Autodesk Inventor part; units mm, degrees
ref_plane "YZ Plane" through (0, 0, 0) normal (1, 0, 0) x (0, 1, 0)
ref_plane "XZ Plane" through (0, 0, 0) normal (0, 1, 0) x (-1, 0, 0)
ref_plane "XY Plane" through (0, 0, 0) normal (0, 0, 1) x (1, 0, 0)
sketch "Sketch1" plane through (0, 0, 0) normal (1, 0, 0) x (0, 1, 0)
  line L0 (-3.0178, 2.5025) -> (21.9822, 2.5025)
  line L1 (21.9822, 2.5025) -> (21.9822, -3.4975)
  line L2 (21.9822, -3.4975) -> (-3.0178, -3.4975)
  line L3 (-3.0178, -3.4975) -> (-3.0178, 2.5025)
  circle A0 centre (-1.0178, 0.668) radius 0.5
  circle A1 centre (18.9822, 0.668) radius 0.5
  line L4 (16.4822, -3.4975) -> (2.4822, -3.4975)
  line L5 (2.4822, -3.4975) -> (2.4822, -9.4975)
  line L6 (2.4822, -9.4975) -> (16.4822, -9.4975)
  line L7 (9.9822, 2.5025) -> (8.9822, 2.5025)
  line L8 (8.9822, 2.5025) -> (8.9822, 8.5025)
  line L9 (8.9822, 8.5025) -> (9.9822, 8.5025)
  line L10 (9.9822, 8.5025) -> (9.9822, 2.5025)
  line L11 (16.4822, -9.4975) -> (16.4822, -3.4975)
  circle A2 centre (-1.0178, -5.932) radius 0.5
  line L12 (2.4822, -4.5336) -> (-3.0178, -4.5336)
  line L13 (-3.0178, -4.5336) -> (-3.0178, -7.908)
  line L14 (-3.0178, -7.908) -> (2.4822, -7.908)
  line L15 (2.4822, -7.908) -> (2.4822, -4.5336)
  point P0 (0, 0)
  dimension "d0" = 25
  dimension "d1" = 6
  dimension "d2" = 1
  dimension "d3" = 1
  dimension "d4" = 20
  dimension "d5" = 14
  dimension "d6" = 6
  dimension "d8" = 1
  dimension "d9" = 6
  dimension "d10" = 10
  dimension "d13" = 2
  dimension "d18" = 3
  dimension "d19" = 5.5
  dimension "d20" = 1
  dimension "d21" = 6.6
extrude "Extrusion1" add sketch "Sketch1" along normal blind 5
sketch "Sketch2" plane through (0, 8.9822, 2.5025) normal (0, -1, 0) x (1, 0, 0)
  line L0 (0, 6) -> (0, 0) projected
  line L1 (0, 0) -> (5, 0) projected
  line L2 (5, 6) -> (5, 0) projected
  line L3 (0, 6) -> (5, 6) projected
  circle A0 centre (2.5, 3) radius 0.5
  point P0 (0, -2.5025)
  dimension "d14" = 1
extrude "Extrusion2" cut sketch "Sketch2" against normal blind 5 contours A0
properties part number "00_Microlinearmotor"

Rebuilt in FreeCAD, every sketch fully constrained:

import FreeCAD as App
import Part
import Sketcher
from FreeCAD import Vector
Q = App.Units.Quantity

doc = App.newDocument("Part")
body = doc.addObject("PartDesign::Body", "Body")

# Sketch on YZ plane
sketch1 = body.newObject("Sketcher::SketchObject", "Sketch")
sketch1.AttachmentSupport = (doc.getObject("YZ_Plane"), [""])
sketch1.MapMode = "FlatFace"
sketch1.addGeometry([
    Part.LineSegment(Vector(9, 2.5, 0), Vector(-3, 2.5, 0)),  # 0
    Part.LineSegment(Vector(-3, 2.5, 0), Vector(-3, -3.5, 0)),  # 1
    Part.LineSegment(Vector(-3, -3.5, 0), Vector(2.5, -3.5, 0)),  # 2
    Part.LineSegment(Vector(2.5, -3.5, 0), Vector(2.5, -4.5, 0)),  # 3
    Part.LineSegment(Vector(2.5, -4.5, 0), Vector(-3, -4.5, 0)),  # 4
    Part.LineSegment(Vector(-3, -4.5, 0), Vector(-3, -7.9, 0)),  # 5
    Part.LineSegment(Vector(-3, -7.9, 0), Vector(2.5, -7.9, 0)),  # 6
    Part.LineSegment(Vector(2.5, -7.9, 0), Vector(2.5, -9.5, 0)),  # 7
    Part.LineSegment(Vector(2.5, -9.5, 0), Vector(16.5, -9.5, 0)),  # 8
    Part.LineSegment(Vector(16.5, -9.5, 0), Vector(16.5, -3.5, 0)),  # 9
    Part.LineSegment(Vector(16.5, -3.5, 0), Vector(22, -3.5, 0)),  # 10
    Part.LineSegment(Vector(22, -3.5, 0), Vector(22, 2.5, 0)),  # 11
    Part.LineSegment(Vector(22, 2.5, 0), Vector(10, 2.5, 0)),  # 12
    Part.LineSegment(Vector(10, 2.5, 0), Vector(10, 8.5, 0)),  # 13
    Part.LineSegment(Vector(10, 8.5, 0), Vector(9, 8.5, 0)),  # 14
    Part.LineSegment(Vector(9, 8.5, 0), Vector(9, 2.5, 0)),  # 15
    Part.Circle(Vector(-1, 0.7, 0), Vector(0, 0, 1), 0.5),  # 16
    Part.Circle(Vector(19, 0.7, 0), Vector(0, 0, 1), 0.5),  # 17
    Part.Circle(Vector(-1, -5.9, 0), Vector(0, 0, 1), 0.5),  # 18
], False)
sketch1.addConstraint([
    Sketcher.Constraint("Coincident", 0, 2, 1, 1),
    Sketcher.Constraint("Coincident", 1, 2, 2, 1),
    Sketcher.Constraint("Coincident", 2, 2, 3, 1),
    Sketcher.Constraint("Coincident", 3, 2, 4, 1),
    Sketcher.Constraint("Coincident", 4, 2, 5, 1),
    Sketcher.Constraint("Coincident", 5, 2, 6, 1),
    Sketcher.Constraint("Coincident", 6, 2, 7, 1),
    Sketcher.Constraint("Coincident", 7, 2, 8, 1),
    Sketcher.Constraint("Coincident", 8, 2, 9, 1),
    Sketcher.Constraint("Coincident", 9, 2, 10, 1),
    Sketcher.Constraint("Coincident", 10, 2, 11, 1),
    Sketcher.Constraint("Coincident", 11, 2, 12, 1),
    Sketcher.Constraint("Coincident", 12, 2, 13, 1),
    Sketcher.Constraint("Coincident", 13, 2, 14, 1),
    Sketcher.Constraint("Coincident", 14, 2, 15, 1),
    Sketcher.Constraint("Coincident", 15, 2, 0, 1),
    Sketcher.Constraint("Horizontal", 0),
    Sketcher.Constraint("Vertical", 1),
    Sketcher.Constraint("Horizontal", 2),
    Sketcher.Constraint("Vertical", 3),
    Sketcher.Constraint("Horizontal", 4),
    Sketcher.Constraint("Vertical", 5),
    Sketcher.Constraint("Horizontal", 6),
    Sketcher.Constraint("Vertical", 7),
    Sketcher.Constraint("Horizontal", 8),
    Sketcher.Constraint("Vertical", 9),
    Sketcher.Constraint("Horizontal", 10),
    Sketcher.Constraint("Vertical", 11),
    Sketcher.Constraint("Horizontal", 12),
    Sketcher.Constraint("Vertical", 13),
    Sketcher.Constraint("Horizontal", 14),
    Sketcher.Constraint("Vertical", 15),
    Sketcher.Constraint("Equal", 16, 17),
    Sketcher.Constraint("Equal", 17, 18),
    Sketcher.Constraint("Horizontal", 16, 3, 17, 3),
    Sketcher.Constraint("Horizontal", 2, 2, 9, 2),
    Sketcher.Constraint("Horizontal", 0, 2, 11, 2),
    Sketcher.Constraint("Vertical", 16, 3, 18, 3),
    Sketcher.Constraint("Vertical", 1, 2, 4, 2),
    Sketcher.Constraint("Vertical", 3, 2, 6, 2),
    Sketcher.Constraint("Equal", 6, 10),
    Sketcher.Constraint("Equal", 0, 12),
    Sketcher.Constraint("Equal", 1, 9),
    Sketcher.Constraint("Equal", 11, 13),
    Sketcher.Constraint("Diameter", 16, Q("1 mm")),
    Sketcher.Constraint("DistanceX", 8, 1, 8, 2, Q("14 mm")),
    Sketcher.Constraint("DistanceX", 14, 2, 14, 1, Q("1 mm")),
    Sketcher.Constraint("DistanceY", 1, 2, 1, 1, Q("6 mm")),
    Sketcher.Constraint("DistanceX", 2, 1, 2, 2, Q("5.5 mm")),
    Sketcher.Constraint("DistanceX", 16, 3, 17, 3, Q("20 mm")),
    Sketcher.Constraint("DistanceX", 0, 2, 16, 3, Q("2 mm")),
    Sketcher.Constraint("DistanceY", 18, 3, 16, 3, Q("6.6 mm")),
    Sketcher.Constraint("DistanceY", 3, 2, 3, 1, Q("1.036 mm")),
    Sketcher.Constraint("DistanceY", 5, 2, 5, 1, Q("3.3744 mm")),
    Sketcher.Constraint("DistanceY", -1, 1, 16, 3, Q("0.668 mm")),
    Sketcher.Constraint("DistanceY", 5, 2, -1, 1, Q("7.908 mm")),
    Sketcher.Constraint("DistanceX", 16, 3, -1, 1, Q("1.0178 mm")),
])
pad1 = body.newObject("PartDesign::Pad", "Pad")
pad1.Profile = sketch1
pad1.Length = 5

# Sketch on XZ plane
sketch2 = body.newObject("Sketcher::SketchObject", "Sketch001")
sketch2.AttachmentSupport = (doc.getObject("XZ_Plane"), [""])
sketch2.MapMode = "FlatFace"
sketch2.AttachmentOffset = App.Placement(Vector(0, 0, -8.9822), App.Rotation())
sketch2.addGeometry(Part.Circle(Vector(2.5, 5.5, 0), Vector(0, 0, 1), 0.5), False)
sketch2.addConstraint([
    Sketcher.Constraint("Diameter", 0, Q("1 mm")),
    Sketcher.Constraint("DistanceX", -1, 1, 0, 3, Q("2.5 mm")),
    Sketcher.Constraint("DistanceY", -1, 1, 0, 3, Q("5.5025 mm")),
])
pocket1 = body.newObject("PartDesign::Pocket", "Pocket")
pocket1.Profile = sketch2
pocket1.Length = 5

doc.recompute()
